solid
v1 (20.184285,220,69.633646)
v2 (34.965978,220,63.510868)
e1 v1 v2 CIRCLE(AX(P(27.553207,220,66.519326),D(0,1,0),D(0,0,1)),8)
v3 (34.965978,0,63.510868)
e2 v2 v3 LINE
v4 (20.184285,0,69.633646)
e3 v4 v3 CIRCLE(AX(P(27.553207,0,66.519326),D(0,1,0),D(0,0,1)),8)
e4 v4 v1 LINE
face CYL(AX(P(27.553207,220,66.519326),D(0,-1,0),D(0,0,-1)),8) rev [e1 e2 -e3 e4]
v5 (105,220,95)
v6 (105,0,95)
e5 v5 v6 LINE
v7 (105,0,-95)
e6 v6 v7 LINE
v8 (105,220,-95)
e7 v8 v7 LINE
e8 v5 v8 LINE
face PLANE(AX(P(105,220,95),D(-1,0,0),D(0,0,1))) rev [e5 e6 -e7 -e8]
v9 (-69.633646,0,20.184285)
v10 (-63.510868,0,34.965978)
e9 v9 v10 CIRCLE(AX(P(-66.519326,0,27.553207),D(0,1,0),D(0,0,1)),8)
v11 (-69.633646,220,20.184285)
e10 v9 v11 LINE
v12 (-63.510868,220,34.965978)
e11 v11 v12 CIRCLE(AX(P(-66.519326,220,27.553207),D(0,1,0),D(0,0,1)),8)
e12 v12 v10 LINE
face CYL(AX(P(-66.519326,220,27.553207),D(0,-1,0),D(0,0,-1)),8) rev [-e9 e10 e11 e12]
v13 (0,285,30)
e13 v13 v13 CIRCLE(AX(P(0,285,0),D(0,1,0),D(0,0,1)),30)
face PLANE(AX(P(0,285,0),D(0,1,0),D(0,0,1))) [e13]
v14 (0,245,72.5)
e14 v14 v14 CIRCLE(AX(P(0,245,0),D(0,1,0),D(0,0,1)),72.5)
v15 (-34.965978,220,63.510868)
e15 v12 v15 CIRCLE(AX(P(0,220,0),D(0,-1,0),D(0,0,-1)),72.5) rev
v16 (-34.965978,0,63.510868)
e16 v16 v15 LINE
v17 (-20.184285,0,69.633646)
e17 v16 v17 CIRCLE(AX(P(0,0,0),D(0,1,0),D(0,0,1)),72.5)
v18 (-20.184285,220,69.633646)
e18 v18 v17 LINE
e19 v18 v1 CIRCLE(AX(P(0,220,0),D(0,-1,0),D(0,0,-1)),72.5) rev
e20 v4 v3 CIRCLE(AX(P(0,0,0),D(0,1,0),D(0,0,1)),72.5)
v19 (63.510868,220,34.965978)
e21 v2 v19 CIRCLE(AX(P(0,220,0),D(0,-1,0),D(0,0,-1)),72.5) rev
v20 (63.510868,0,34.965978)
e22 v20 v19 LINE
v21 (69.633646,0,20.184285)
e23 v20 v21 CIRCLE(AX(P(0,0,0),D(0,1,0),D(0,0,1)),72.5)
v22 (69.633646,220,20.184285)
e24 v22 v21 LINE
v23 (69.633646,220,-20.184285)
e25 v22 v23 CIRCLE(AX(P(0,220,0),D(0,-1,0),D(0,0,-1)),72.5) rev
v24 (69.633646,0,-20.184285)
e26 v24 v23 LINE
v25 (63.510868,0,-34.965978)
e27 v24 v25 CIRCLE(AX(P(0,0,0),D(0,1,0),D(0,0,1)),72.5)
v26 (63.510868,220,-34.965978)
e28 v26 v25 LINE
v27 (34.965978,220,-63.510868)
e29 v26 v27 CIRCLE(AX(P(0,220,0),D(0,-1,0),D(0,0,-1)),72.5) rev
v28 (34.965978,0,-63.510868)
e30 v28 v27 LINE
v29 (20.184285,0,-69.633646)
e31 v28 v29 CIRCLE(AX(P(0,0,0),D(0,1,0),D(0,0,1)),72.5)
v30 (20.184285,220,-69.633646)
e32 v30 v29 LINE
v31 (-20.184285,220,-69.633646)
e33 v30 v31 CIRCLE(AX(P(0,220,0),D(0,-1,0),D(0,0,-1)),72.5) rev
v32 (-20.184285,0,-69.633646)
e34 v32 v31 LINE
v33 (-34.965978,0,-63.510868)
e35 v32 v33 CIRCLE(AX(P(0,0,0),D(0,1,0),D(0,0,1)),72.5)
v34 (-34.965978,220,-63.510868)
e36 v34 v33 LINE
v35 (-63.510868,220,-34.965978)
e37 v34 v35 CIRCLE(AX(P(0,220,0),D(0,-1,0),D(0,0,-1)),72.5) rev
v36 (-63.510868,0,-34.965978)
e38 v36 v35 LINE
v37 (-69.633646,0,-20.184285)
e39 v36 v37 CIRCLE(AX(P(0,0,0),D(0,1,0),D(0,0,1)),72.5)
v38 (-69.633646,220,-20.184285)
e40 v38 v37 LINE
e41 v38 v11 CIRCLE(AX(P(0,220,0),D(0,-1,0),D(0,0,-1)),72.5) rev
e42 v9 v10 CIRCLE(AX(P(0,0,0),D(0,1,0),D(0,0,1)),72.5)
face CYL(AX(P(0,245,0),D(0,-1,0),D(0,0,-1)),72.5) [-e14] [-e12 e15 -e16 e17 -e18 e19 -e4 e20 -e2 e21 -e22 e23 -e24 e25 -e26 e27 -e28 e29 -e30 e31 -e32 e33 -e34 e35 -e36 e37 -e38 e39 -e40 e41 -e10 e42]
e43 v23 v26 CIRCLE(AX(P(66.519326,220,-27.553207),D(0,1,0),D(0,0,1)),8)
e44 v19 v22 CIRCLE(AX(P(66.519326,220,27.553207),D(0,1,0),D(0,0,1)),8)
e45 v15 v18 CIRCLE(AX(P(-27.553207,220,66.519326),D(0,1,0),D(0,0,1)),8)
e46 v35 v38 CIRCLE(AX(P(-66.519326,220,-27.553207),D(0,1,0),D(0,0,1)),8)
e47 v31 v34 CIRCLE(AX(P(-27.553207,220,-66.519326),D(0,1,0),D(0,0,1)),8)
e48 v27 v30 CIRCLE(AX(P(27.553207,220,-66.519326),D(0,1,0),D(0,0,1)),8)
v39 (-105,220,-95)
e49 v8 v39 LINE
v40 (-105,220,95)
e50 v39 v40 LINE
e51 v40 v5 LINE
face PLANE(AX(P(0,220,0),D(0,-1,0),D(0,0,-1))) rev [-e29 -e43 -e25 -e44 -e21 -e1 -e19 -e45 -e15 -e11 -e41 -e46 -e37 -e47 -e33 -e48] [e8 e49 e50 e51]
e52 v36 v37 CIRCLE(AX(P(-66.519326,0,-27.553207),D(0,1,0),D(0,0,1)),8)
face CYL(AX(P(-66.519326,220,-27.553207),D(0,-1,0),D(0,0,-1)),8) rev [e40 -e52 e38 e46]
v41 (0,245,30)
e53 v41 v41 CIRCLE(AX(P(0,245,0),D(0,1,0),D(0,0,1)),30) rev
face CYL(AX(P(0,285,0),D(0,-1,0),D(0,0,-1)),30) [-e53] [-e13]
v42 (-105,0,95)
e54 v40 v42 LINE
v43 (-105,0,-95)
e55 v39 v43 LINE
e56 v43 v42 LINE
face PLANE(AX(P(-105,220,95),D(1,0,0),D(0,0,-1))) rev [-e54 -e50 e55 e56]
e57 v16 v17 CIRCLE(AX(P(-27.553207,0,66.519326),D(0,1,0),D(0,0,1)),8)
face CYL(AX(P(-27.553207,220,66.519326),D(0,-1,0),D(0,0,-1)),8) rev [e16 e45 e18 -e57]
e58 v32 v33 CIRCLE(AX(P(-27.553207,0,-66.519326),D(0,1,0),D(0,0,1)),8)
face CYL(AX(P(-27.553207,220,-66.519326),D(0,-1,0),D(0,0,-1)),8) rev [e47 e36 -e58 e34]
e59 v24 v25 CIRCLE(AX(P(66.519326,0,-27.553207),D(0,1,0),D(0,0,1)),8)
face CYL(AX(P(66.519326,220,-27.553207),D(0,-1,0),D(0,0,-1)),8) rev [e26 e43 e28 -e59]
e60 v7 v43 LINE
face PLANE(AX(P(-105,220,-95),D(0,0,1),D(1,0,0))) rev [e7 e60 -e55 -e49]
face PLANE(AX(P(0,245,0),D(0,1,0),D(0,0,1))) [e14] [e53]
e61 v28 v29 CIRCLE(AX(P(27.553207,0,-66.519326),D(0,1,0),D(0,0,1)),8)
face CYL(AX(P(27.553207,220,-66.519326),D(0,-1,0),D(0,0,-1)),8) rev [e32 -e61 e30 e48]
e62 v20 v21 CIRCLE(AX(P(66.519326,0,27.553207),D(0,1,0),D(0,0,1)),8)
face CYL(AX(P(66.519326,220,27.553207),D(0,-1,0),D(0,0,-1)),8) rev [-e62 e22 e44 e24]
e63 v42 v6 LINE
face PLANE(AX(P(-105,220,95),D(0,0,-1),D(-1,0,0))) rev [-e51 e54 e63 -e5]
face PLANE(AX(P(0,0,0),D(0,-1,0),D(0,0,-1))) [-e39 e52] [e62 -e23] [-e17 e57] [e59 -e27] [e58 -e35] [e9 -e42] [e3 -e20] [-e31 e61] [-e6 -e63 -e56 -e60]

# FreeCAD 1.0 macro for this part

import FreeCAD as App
import Part
import Sketcher

V = App.Vector
Q = App.Units.Quantity


def add_polygon(sketch, points):
    """Adds a closed chain of lines whose ends are joined by coincident constraints."""
    first, n = sketch.GeometryCount, len(points)
    for a, b in zip(points, points[1:] + points[:1]):
        sketch.addGeometry(Part.LineSegment(App.Vector(*a, 0), App.Vector(*b, 0)), False)
    for i in range(n):
        sketch.addConstraint(Sketcher.Constraint("Coincident", first + i, 2, first + (i + 1) % n, 1))

doc = App.newDocument("Part")
body = doc.addObject("PartDesign::Body", "Body")

# Sketch on XZ plane
sketch1 = body.newObject("Sketcher::SketchObject", "Sketch")
sketch1.AttachmentSupport = (doc.getObject("XZ_Plane"), [""])
sketch1.MapMode = "FlatFace"
add_polygon(sketch1, [(-105, -95), (-105, 95), (105, 95), (105, -95)])  # lines 0-3
sketch1.addGeometry(Part.Circle(V(-28, 67, 0), V(0, 0, 1), 8), False)  # 4
sketch1.addGeometry(Part.Circle(V(-67, 28, 0), V(0, 0, 1), 8), False)  # 5
sketch1.addGeometry(Part.Circle(V(28, 67, 0), V(0, 0, 1), 8), False)  # 6
sketch1.addGeometry(Part.Circle(V(67, 28, 0), V(0, 0, 1), 8), False)  # 7
sketch1.addGeometry(Part.Circle(V(-67, -28, 0), V(0, 0, 1), 8), False)  # 8
sketch1.addGeometry(Part.Circle(V(-28, -67, 0), V(0, 0, 1), 8), False)  # 9
sketch1.addGeometry(Part.Circle(V(67, -28, 0), V(0, 0, 1), 8), False)  # 10
sketch1.addGeometry(Part.Circle(V(28, -67, 0), V(0, 0, 1), 8), False)  # 11
sketch1.addConstraint([
    Sketcher.Constraint("Vertical", 0),
    Sketcher.Constraint("Horizontal", 1),
    Sketcher.Constraint("Vertical", 2),
    Sketcher.Constraint("Horizontal", 3),
    Sketcher.Constraint("Equal", 4, 5),
    Sketcher.Constraint("Equal", 5, 6),
    Sketcher.Constraint("Equal", 6, 7),
    Sketcher.Constraint("Equal", 7, 8),
    Sketcher.Constraint("Equal", 8, 9),
    Sketcher.Constraint("Equal", 9, 10),
    Sketcher.Constraint("Equal", 10, 11),
    Sketcher.Constraint("Symmetric", 7, 3, 8, 3, -1, 1),
    Sketcher.Constraint("Symmetric", 6, 3, 9, 3, -1, 1),
    Sketcher.Constraint("Symmetric", 5, 3, 10, 3, -1, 1),
    Sketcher.Constraint("Symmetric", 4, 3, 11, 3, -1, 1),
    Sketcher.Constraint("Symmetric", 0, 2, 2, 2, -1, 1),
    Sketcher.Constraint("Symmetric", 4, 3, 6, 3, -2),
    Sketcher.Constraint("Symmetric", 5, 3, 7, 3, -2),
    Sketcher.Constraint("Diameter", 4, Q("16 mm")),
    Sketcher.Constraint("DistanceX", 1, 1, 1, 2, Q("210 mm")),
    Sketcher.Constraint("DistanceY", 0, 1, 0, 2, Q("190 mm")),
    Sketcher.Constraint("DistanceX", 5, 3, 4, 3, Q("38.966119 mm")),
    Sketcher.Constraint("DistanceY", 5, 3, 4, 3, Q("38.966119 mm")),
    Sketcher.Constraint("DistanceX", 4, 3, -1, 1, Q("27.553207 mm")),
    Sketcher.Constraint("DistanceY", -1, 1, 4, 3, Q("66.519326 mm")),
])
pad1 = body.newObject("PartDesign::Pad", "Pad")
pad1.Profile = sketch1
pad1.Length = 220
pad1.Reversed = True

# Sketch on XZ plane
sketch2 = body.newObject("Sketcher::SketchObject", "Sketch001")
sketch2.AttachmentSupport = (doc.getObject("XZ_Plane"), [""])
sketch2.MapMode = "FlatFace"
sketch2.addGeometry(Part.Circle(V(0, 0, 0), V(0, 0, 1), 72), False)
sketch2.addConstraint([
    Sketcher.Constraint("Coincident", 0, 3, -1, 1),
    Sketcher.Constraint("Diameter", 0, Q("145 mm")),
])
pad2 = body.newObject("PartDesign::Pad", "Pad001")
pad2.Profile = sketch2
pad2.Length = 245
pad2.Reversed = True

# Sketch on XZ plane
sketch3 = body.newObject("Sketcher::SketchObject", "Sketch002")
sketch3.AttachmentSupport = (doc.getObject("XZ_Plane"), [""])
sketch3.MapMode = "FlatFace"
sketch3.addGeometry(Part.Circle(V(0, 0, 0), V(0, 0, 1), 30), False)
sketch3.addConstraint([
    Sketcher.Constraint("Coincident", 0, 3, -1, 1),
    Sketcher.Constraint("Diameter", 0, Q("60 mm")),
])
pad3 = body.newObject("PartDesign::Pad", "Pad002")
pad3.Profile = sketch3
pad3.Length = 285
pad3.Reversed = True

doc.recompute()
